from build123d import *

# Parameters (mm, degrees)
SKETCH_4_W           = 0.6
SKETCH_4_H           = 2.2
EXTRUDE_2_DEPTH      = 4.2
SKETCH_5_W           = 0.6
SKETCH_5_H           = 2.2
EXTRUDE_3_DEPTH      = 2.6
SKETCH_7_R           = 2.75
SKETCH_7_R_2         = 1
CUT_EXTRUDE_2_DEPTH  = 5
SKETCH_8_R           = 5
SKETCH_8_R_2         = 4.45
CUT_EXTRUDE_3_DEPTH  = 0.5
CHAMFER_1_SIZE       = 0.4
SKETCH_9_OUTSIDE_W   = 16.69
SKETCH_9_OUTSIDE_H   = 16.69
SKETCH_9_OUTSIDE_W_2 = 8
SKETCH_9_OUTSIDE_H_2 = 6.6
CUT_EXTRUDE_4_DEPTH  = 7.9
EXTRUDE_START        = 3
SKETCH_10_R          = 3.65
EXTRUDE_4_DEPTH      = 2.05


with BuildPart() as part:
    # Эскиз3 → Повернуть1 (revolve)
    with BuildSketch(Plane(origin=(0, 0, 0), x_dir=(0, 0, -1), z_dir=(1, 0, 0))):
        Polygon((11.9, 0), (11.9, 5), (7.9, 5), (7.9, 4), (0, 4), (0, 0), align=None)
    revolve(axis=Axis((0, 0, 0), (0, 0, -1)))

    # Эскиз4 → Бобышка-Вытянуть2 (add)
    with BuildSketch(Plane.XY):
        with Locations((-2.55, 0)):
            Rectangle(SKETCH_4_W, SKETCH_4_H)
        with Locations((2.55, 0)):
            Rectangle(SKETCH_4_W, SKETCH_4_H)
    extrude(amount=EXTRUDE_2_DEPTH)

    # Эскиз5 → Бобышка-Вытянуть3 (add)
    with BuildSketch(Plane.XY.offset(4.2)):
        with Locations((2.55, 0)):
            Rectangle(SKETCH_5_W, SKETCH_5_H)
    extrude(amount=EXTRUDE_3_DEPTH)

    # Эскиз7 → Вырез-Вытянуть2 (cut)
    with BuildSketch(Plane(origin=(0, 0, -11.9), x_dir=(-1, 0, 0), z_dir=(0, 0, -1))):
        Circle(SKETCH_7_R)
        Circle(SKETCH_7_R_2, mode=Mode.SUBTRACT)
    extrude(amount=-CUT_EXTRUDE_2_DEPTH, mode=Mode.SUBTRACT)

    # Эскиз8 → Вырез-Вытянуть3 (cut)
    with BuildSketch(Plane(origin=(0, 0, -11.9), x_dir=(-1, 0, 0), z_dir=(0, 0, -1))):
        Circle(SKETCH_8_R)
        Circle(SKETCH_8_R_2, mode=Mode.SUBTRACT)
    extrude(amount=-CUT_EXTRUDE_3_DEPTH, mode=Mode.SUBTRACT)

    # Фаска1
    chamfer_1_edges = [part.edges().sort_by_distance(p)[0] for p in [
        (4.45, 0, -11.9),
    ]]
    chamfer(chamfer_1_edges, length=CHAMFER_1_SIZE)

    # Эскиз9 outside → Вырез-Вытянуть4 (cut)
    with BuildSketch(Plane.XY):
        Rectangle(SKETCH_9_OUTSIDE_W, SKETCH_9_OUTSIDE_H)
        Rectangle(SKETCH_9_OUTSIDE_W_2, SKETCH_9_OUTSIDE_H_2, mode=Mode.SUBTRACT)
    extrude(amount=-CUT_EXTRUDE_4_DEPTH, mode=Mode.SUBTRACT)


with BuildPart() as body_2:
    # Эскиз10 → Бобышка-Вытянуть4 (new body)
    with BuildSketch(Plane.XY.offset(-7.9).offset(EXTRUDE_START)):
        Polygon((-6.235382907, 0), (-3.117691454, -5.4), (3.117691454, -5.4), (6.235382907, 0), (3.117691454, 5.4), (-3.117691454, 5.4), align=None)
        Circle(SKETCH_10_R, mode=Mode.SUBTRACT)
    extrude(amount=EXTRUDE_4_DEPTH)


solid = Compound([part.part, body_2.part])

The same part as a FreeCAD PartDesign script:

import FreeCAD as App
import Part
import Sketcher

V = App.Vector
Q = App.Units.Quantity


def edges_at(feature, points):
    """Names of the edges that pass closest to the given points."""
    edges = feature.Shape.Edges
    near = lambda p: min(range(len(edges)), key=lambda i: edges[i].distToShape(Part.Vertex(*p))[0])
    return sorted({f"Edge{near(p) + 1}" for p in points})

doc = App.newDocument("Part")
params = doc.addObject("Spreadsheet::Sheet", "Params")
for row, (alias, value) in enumerate([
    ("sketch1_width", "5 mm"),
    ("sketch1_width2", "1 mm"),
    ("sketch1_height", "7.9 mm"),
    ("revolution_angle", "360 deg"),
    ("sketch2_width", "0.6 mm"),
    ("sketch2_height", "2.2 mm"),
    ("pad1_length", "4.2 mm"),
    ("sketch3_width", "0.6 mm"),
    ("sketch3_height", "2.2 mm"),
    ("pad2_length", "2.6 mm"),
    ("sketch4_diameter", "2 mm"),
    ("sketch4_diameter2", "5.5 mm"),
    ("pocket1_length", "5 mm"),
    ("sketch5_diameter", "10 mm"),
    ("sketch5_diameter2", "8.9 mm"),
    ("pocket2_length", "0.5 mm"),
    ("chamfer_size", "0.4 mm"),
    ("sketch6_width", "8 mm"),
    ("sketch6_height", "6.6 mm"),
    ("sketch6_width2", "16.69 mm"),
    ("pocket3_length", "7.9 mm"),
    ("sketch7_diameter", "7.3 mm"),
    ("pad3_length", "2.05 mm"),
], start=1):
    params.set(f"A{row}", alias)
    params.set(f"B{row}", "=" + value)
    params.setAlias(f"B{row}", alias)

body = doc.addObject("PartDesign::Body", "Body")

sketch1 = body.newObject("Sketcher::SketchObject", "Sketch")
sketch1.AttachmentSupport = (doc.getObject("YZ_Plane"), [""])
sketch1.MapMode = "FlatFace"
sketch1.addGeometry(Part.LineSegment(V(0, -11.9, 0), V(5, -11.9, 0)), False)
sketch1.addGeometry(Part.LineSegment(V(5, -11.9, 0), V(5, -7.9, 0)), False)
sketch1.addGeometry(Part.LineSegment(V(5, -7.9, 0), V(4, -7.9, 0)), False)
sketch1.addGeometry(Part.LineSegment(V(4, -7.9, 0), V(4, 0, 0)), False)
sketch1.addGeometry(Part.LineSegment(V(4, 0, 0), V(0, 0, 0)), False)
sketch1.addGeometry(Part.LineSegment(V(0, 0, 0), V(0, -11.9, 0)), False)
sketch1.addConstraint(Sketcher.Constraint("Coincident", 0, 2, 1, 1))
sketch1.addConstraint(Sketcher.Constraint("Coincident", 1, 2, 2, 1))
sketch1.addConstraint(Sketcher.Constraint("Coincident", 2, 2, 3, 1))
sketch1.addConstraint(Sketcher.Constraint("Coincident", 3, 2, 4, 1))
sketch1.addConstraint(Sketcher.Constraint("Coincident", 4, 2, 5, 1))
sketch1.addConstraint(Sketcher.Constraint("Coincident", 5, 2, 0, 1))
sketch1.addConstraint(Sketcher.Constraint("Horizontal", 0))
sketch1.addConstraint(Sketcher.Constraint("Vertical", 1))
sketch1.addConstraint(Sketcher.Constraint("Horizontal", 2))
sketch1.addConstraint(Sketcher.Constraint("Vertical", 3))
sketch1.addConstraint(Sketcher.Constraint("Horizontal", 4))
sketch1.addConstraint(Sketcher.Constraint("Vertical", 5))
sketch1.addConstraint(Sketcher.Constraint("Coincident", 4, 2, -1, 1))
sketch1.addConstraint(Sketcher.Constraint("Equal", 4, 1))
sketch1.addConstraint(Sketcher.Constraint("DistanceX", 0, 1, 0, 2, 5.0))
sketch1.addConstraint(Sketcher.Constraint("DistanceX", 2, 2, 2, 1, 1.0))
sketch1.addConstraint(Sketcher.Constraint("DistanceY", 3, 1, 3, 2, 7.9))
sketch1.setExpression("Constraints[14]", "Params.sketch1_width")
sketch1.setExpression("Constraints[15]", "Params.sketch1_width2")
sketch1.setExpression("Constraints[16]", "Params.sketch1_height")
revolution = body.newObject("PartDesign::Revolution", "Revolution")
revolution.Profile = sketch1
revolution.ReferenceAxis = (sketch1, ["V_Axis"])
revolution.setExpression("Angle", "Params.revolution_angle")

sketch2 = body.newObject("Sketcher::SketchObject", "Sketch001")
sketch2.AttachmentSupport = (doc.getObject("XY_Plane"), [""])
sketch2.MapMode = "FlatFace"
sketch2.addGeometry(Part.LineSegment(V(-2.9, 1.1, 0), V(-2.9, -1.1, 0)), False)
sketch2.addGeometry(Part.LineSegment(V(-2.9, -1.1, 0), V(-2.2, -1.1, 0)), False)
sketch2.addGeometry(Part.LineSegment(V(-2.2, -1.1, 0), V(-2.2, 1.1, 0)), False)
sketch2.addGeometry(Part.LineSegment(V(-2.2, 1.1, 0), V(-2.9, 1.1, 0)), False)
sketch2.addGeometry(Part.LineSegment(V(2.2, 1.1, 0), V(2.2, -1.1, 0)), False)
sketch2.addGeometry(Part.LineSegment(V(2.2, -1.1, 0), V(2.9, -1.1, 0)), False)
sketch2.addGeometry(Part.LineSegment(V(2.9, -1.1, 0), V(2.9, 1.1, 0)), False)
sketch2.addGeometry(Part.LineSegment(V(2.9, 1.1, 0), V(2.2, 1.1, 0)), False)
sketch2.addConstraint(Sketcher.Constraint("Coincident", 0, 2, 1, 1))
sketch2.addConstraint(Sketcher.Constraint("Coincident", 1, 2, 2, 1))
sketch2.addConstraint(Sketcher.Constraint("Coincident", 2, 2, 3, 1))
sketch2.addConstraint(Sketcher.Constraint("Coincident", 3, 2, 0, 1))
sketch2.addConstraint(Sketcher.Constraint("Coincident", 4, 2, 5, 1))
sketch2.addConstraint(Sketcher.Constraint("Coincident", 5, 2, 6, 1))
sketch2.addConstraint(Sketcher.Constraint("Coincident", 6, 2, 7, 1))
sketch2.addConstraint(Sketcher.Constraint("Coincident", 7, 2, 4, 1))
sketch2.addConstraint(Sketcher.Constraint("Vertical", 0))
sketch2.addConstraint(Sketcher.Constraint("Horizontal", 1))
sketch2.addConstraint(Sketcher.Constraint("Vertical", 2))
sketch2.addConstraint(Sketcher.Constraint("Horizontal", 3))
sketch2.addConstraint(Sketcher.Constraint("Vertical", 4))
sketch2.addConstraint(Sketcher.Constraint("Horizontal", 5))
sketch2.addConstraint(Sketcher.Constraint("Vertical", 6))
sketch2.addConstraint(Sketcher.Constraint("Horizontal", 7))
sketch2.addConstraint(Sketcher.Constraint("Symmetric", 2, 2, 4, 2, -1, 1))
sketch2.addConstraint(Sketcher.Constraint("Symmetric", 0, 2, 6, 2, -1, 1))
sketch2.addConstraint(Sketcher.Constraint("Horizontal", 1, 2, 4, 2))
sketch2.addConstraint(Sketcher.Constraint("DistanceX", 1, 1, 1, 2, 0.6))
sketch2.addConstraint(Sketcher.Constraint("DistanceY", 0, 2, 0, 1, 2.2))
sketch2.addConstraint(Sketcher.Constraint("DistanceX", 1, 2, 4, 2, 4.5))
sketch2.setExpression("Constraints[19]", "Params.sketch2_width")
sketch2.setExpression("Constraints[20]", "Params.sketch2_height")
pad1 = body.newObject("PartDesign::Pad", "Pad")
pad1.Profile = sketch2
pad1.setExpression("Length", "Params.pad1_length")

sketch3 = body.newObject("Sketcher::SketchObject", "Sketch002")
sketch3.AttachmentSupport = (doc.getObject("XY_Plane"), [""])
sketch3.MapMode = "FlatFace"
sketch3.AttachmentOffset = App.Placement(V(0, 0, 4.2), App.Rotation())
sketch3.addGeometry(Part.LineSegment(V(2.2, 1.1, 0), V(2.2, -1.1, 0)), False)
sketch3.addGeometry(Part.LineSegment(V(2.2, -1.1, 0), V(2.9, -1.1, 0)), False)
sketch3.addGeometry(Part.LineSegment(V(2.9, -1.1, 0), V(2.9, 1.1, 0)), False)
sketch3.addGeometry(Part.LineSegment(V(2.9, 1.1, 0), V(2.2, 1.1, 0)), False)
sketch3.addConstraint(Sketcher.Constraint("Coincident", 0, 2, 1, 1))
sketch3.addConstraint(Sketcher.Constraint("Coincident", 1, 2, 2, 1))
sketch3.addConstraint(Sketcher.Constraint("Coincident", 2, 2, 3, 1))
sketch3.addConstraint(Sketcher.Constraint("Coincident", 3, 2, 0, 1))
sketch3.addConstraint(Sketcher.Constraint("Vertical", 0))
sketch3.addConstraint(Sketcher.Constraint("Horizontal", 1))
sketch3.addConstraint(Sketcher.Constraint("Vertical", 2))
sketch3.addConstraint(Sketcher.Constraint("Horizontal", 3))
sketch3.addConstraint(Sketcher.Constraint("DistanceX", 1, 1, 1, 2, 0.6))
sketch3.addConstraint(Sketcher.Constraint("DistanceY", 0, 2, 0, 1, 2.2))
sketch3.addConstraint(Sketcher.Constraint("DistanceY", 0, 2, -1, 1, 1.1))
sketch3.addConstraint(Sketcher.Constraint("DistanceX", -1, 1, 0, 2, 2.25))
sketch3.setExpression("Constraints[8]", "Params.sketch3_width")
sketch3.setExpression("Constraints[9]", "Params.sketch3_height")
pad2 = body.newObject("PartDesign::Pad", "Pad001")
pad2.Profile = sketch3
pad2.setExpression("Length", "Params.pad2_length")

sketch4 = body.newObject("Sketcher::SketchObject", "Sketch003")
sketch4.AttachmentSupport = (doc.getObject("XY_Plane"), [""])
sketch4.MapMode = "FlatFace"
sketch4.AttachmentOffset = App.Placement(V(0, 0, -11.9), App.Rotation())
sketch4.addGeometry(Part.Circle(V(0, 0, 0), V(0, 0, 1), 2.8), False)
sketch4.addGeometry(Part.Circle(V(0, 0, 0), V(0, 0, 1), 1), False)
sketch4.addConstraint(Sketcher.Constraint("Coincident", 0, 3, -1, 1))
sketch4.addConstraint(Sketcher.Constraint("Coincident", 1, 3, -1, 1))
sketch4.addConstraint(Sketcher.Constraint("Diameter", 1, 2.0))
sketch4.addConstraint(Sketcher.Constraint("Diameter", 0, 5.5))
sketch4.setExpression("Constraints[2]", "Params.sketch4_diameter")
sketch4.setExpression("Constraints[3]", "Params.sketch4_diameter2")
pocket1 = body.newObject("PartDesign::Pocket", "Pocket")
pocket1.Profile = sketch4
pocket1.setExpression("Length", "Params.pocket1_length")
pocket1.Reversed = True

sketch5 = body.newObject("Sketcher::SketchObject", "Sketch004")
sketch5.AttachmentSupport = (doc.getObject("XY_Plane"), [""])
sketch5.MapMode = "FlatFace"
sketch5.AttachmentOffset = App.Placement(V(0, 0, -11.9), App.Rotation())
sketch5.addGeometry(Part.Circle(V(0, 0, 0), V(0, 0, 1), 5), False)
sketch5.addGeometry(Part.Circle(V(0, 0, 0), V(0, 0, 1), 4.5), False)
sketch5.addConstraint(Sketcher.Constraint("Coincident", 0, 3, -1, 1))
sketch5.addConstraint(Sketcher.Constraint("Coincident", 1, 3, -1, 1))
sketch5.addConstraint(Sketcher.Constraint("Diameter", 0, 10.0))
sketch5.addConstraint(Sketcher.Constraint("Diameter", 1, 8.9))
sketch5.setExpression("Constraints[2]", "Params.sketch5_diameter")
sketch5.setExpression("Constraints[3]", "Params.sketch5_diameter2")
pocket2 = body.newObject("PartDesign::Pocket", "Pocket001")
pocket2.Profile = sketch5
pocket2.setExpression("Length", "Params.pocket2_length")
pocket2.Reversed = True
doc.recompute()

chamfer = body.newObject("PartDesign::Chamfer", "Chamfer")
chamfer.Base = (pocket2, edges_at(pocket2, [(4.45, 0, -11.9)]))
chamfer.setExpression("Size", "Params.chamfer_size")

sketch6 = body.newObject("Sketcher::SketchObject", "Sketch005")
sketch6.AttachmentSupport = (doc.getObject("XY_Plane"), [""])
sketch6.MapMode = "FlatFace"
sketch6.addGeometry(Part.LineSegment(V(-8, 8, 0), V(-8, -8, 0)), False)
sketch6.addGeometry(Part.LineSegment(V(-8, -8, 0), V(8, -8, 0)), False)
sketch6.addGeometry(Part.LineSegment(V(8, -8, 0), V(8, 8, 0)), False)
sketch6.addGeometry(Part.LineSegment(V(8, 8, 0), V(-8, 8, 0)), False)
sketch6.addGeometry(Part.LineSegment(V(4, -3, 0), V(-4, -3, 0)), False)
sketch6.addGeometry(Part.LineSegment(V(-4, -3, 0), V(-4, 3, 0)), False)
sketch6.addGeometry(Part.LineSegment(V(-4, 3, 0), V(4, 3, 0)), False)
sketch6.addGeometry(Part.LineSegment(V(4, 3, 0), V(4, -3, 0)), False)
sketch6.addConstraint(Sketcher.Constraint("Coincident", 0, 2, 1, 1))
sketch6.addConstraint(Sketcher.Constraint("Coincident", 1, 2, 2, 1))
sketch6.addConstraint(Sketcher.Constraint("Coincident", 2, 2, 3, 1))
sketch6.addConstraint(Sketcher.Constraint("Coincident", 3, 2, 0, 1))
sketch6.addConstraint(Sketcher.Constraint("Coincident", 4, 2, 5, 1))
sketch6.addConstraint(Sketcher.Constraint("Coincident", 5, 2, 6, 1))
sketch6.addConstraint(Sketcher.Constraint("Coincident", 6, 2, 7, 1))
sketch6.addConstraint(Sketcher.Constraint("Coincident", 7, 2, 4, 1))
sketch6.addConstraint(Sketcher.Constraint("Vertical", 0))
sketch6.addConstraint(Sketcher.Constraint("Horizontal", 1))
sketch6.addConstraint(Sketcher.Constraint("Vertical", 2))
sketch6.addConstraint(Sketcher.Constraint("Horizontal", 3))
sketch6.addConstraint(Sketcher.Constraint("Horizontal", 4))
sketch6.addConstraint(Sketcher.Constraint("Vertical", 5))
sketch6.addConstraint(Sketcher.Constraint("Horizontal", 6))
sketch6.addConstraint(Sketcher.Constraint("Vertical", 7))
sketch6.addConstraint(Sketcher.Constraint("Symmetric", 0, 2, 2, 2, -1, 1))
sketch6.addConstraint(Sketcher.Constraint("Symmetric", 4, 2, 6, 2, -1, 1))
sketch6.addConstraint(Sketcher.Constraint("Equal", 3, 0))
sketch6.addConstraint(Sketcher.Constraint("DistanceX", 4, 2, 4, 1, 8.0))
sketch6.addConstraint(Sketcher.Constraint("DistanceY", 5, 1, 5, 2, 6.6))
sketch6.addConstraint(Sketcher.Constraint("DistanceX", 1, 1, 1, 2, 16.69))
sketch6.setExpression("Constraints[19]", "Params.sketch6_width")
sketch6.setExpression("Constraints[20]", "Params.sketch6_height")
sketch6.setExpression("Constraints[21]", "Params.sketch6_width2")
pocket3 = body.newObject("PartDesign::Pocket", "Pocket002")
pocket3.Profile = sketch6
pocket3.setExpression("Length", "Params.pocket3_length")
body2 = doc.addObject("PartDesign::Body", "Body001")

sketch7 = body2.newObject("Sketcher::SketchObject", "Sketch006")
sketch7.AttachmentSupport = (doc.getObject("XY_Plane001"), [""])
sketch7.MapMode = "FlatFace"
sketch7.AttachmentOffset = App.Placement(V(0, 0, -4.9), App.Rotation())
sketch7.addGeometry(Part.LineSegment(V(-6.2, 0, 0), V(-3.1, -5.4, 0)), False)
sketch7.addGeometry(Part.LineSegment(V(-3.1, -5.4, 0), V(3.1, -5.4, 0)), False)
sketch7.addGeometry(Part.LineSegment(V(3.1, -5.4, 0), V(6.2, 0, 0)), False)
sketch7.addGeometry(Part.LineSegment(V(6.2, 0, 0), V(3.1, 5.4, 0)), False)
sketch7.addGeometry(Part.LineSegment(V(3.1, 5.4, 0), V(-3.1, 5.4, 0)), False)
sketch7.addGeometry(Part.LineSegment(V(-3.1, 5.4, 0), V(-6.2, 0, 0)), False)
sketch7.addGeometry(Part.Circle(V(0, 0, 0), V(0, 0, 1), 3.6), False)
sketch7.addConstraint(Sketcher.Constraint("Coincident", 0, 2, 1, 1))
sketch7.addConstraint(Sketcher.Constraint("Coincident", 1, 2, 2, 1))
sketch7.addConstraint(Sketcher.Constraint("Coincident", 2, 2, 3, 1))
sketch7.addConstraint(Sketcher.Constraint("Coincident", 3, 2, 4, 1))
sketch7.addConstraint(Sketcher.Constraint("Coincident", 4, 2, 5, 1))
sketch7.addConstraint(Sketcher.Constraint("Coincident", 5, 2, 0, 1))
sketch7.addConstraint(Sketcher.Constraint("Horizontal", 1))
sketch7.addConstraint(Sketcher.Constraint("Horizontal", 4))
sketch7.addConstraint(Sketcher.Constraint("Coincident", 6, 3, -1, 1))
sketch7.addConstraint(Sketcher.Constraint("Symmetric", 0, 2, 3, 2, -1, 1))
sketch7.addConstraint(Sketcher.Constraint("Symmetric", 2, 2, 5, 2, -1, 1))
sketch7.addConstraint(Sketcher.Constraint("PointOnObject", 2, 2, -1))
sketch7.addConstraint(Sketcher.Constraint("Parallel", 2, 5))
sketch7.addConstraint(Sketcher.Constraint("Vertical", 1, 2, 3, 2))
sketch7.addConstraint(Sketcher.Constraint("Diameter", 6, 7.3))
sketch7.addConstraint(Sketcher.Constraint("Angle", 0, Q("-60 deg")))
sketch7.addConstraint(Sketcher.Constraint("DistanceY", 0, 2, -1, 1, 5.4))
sketch7.addConstraint(Sketcher.Constraint("DistanceX", 1, 1, 1, 2, 6.235383))
sketch7.setExpression("Constraints[14]", "Params.sketch7_diameter")
pad3 = body2.newObject("PartDesign::Pad", "Pad002")
pad3.Profile = sketch7
pad3.setExpression("Length", "Params.pad3_length")

doc.recompute()
